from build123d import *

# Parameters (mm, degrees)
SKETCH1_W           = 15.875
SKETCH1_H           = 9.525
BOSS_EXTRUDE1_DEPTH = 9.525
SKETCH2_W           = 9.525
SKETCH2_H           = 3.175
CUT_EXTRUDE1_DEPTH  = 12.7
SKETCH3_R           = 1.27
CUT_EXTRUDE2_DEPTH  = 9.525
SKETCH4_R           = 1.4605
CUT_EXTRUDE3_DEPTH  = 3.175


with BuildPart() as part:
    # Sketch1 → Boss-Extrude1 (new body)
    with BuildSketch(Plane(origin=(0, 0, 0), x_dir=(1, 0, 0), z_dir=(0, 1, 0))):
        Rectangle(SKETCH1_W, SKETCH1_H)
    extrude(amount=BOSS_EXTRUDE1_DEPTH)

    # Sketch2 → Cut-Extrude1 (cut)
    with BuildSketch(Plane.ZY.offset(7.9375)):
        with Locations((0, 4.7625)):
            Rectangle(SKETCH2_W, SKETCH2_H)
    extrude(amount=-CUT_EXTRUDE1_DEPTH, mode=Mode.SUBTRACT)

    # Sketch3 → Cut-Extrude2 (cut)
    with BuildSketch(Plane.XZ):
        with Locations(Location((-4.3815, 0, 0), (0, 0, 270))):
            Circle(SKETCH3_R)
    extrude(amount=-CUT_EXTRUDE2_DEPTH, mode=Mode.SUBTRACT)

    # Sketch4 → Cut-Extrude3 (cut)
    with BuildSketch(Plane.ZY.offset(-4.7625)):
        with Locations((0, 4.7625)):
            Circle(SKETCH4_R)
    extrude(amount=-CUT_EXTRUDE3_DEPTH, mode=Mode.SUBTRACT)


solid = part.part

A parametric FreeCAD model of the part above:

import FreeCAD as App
import Part
import Sketcher
Q = App.Units.Quantity


def add_polygon(sketch, points):
    """Adds a closed chain of lines whose ends are joined by coincident constraints."""
    first, n = sketch.GeometryCount, len(points)
    for a, b in zip(points, points[1:] + points[:1]):
        sketch.addGeometry(Part.LineSegment(App.Vector(*a, 0), App.Vector(*b, 0)), False)
    for i in range(n):
        sketch.addConstraint(Sketcher.Constraint("Coincident", first + i, 2, first + (i + 1) % n, 1))

doc = App.newDocument("Part")
body = doc.addObject("PartDesign::Body", "Body")

# Sketch on XZ plane
sketch1 = body.newObject("Sketcher::SketchObject", "Sketch")
sketch1.AttachmentSupport = (doc.getObject("XZ_Plane"), [""])
sketch1.MapMode = "FlatFace"
add_polygon(sketch1, [(-8, -5), (-8, 5), (8, 5), (8, -5)])  # lines 0-3
sketch1.addConstraint(Sketcher.Constraint("Vertical", 0))
sketch1.addConstraint(Sketcher.Constraint("Horizontal", 1))
sketch1.addConstraint(Sketcher.Constraint("Vertical", 2))
sketch1.addConstraint(Sketcher.Constraint("Horizontal", 3))
sketch1.addConstraint(Sketcher.Constraint("Symmetric", 0, 2, 2, 2, -1, 1))
sketch1.addConstraint(Sketcher.Constraint("DistanceX", 1, 1, 1, 2, Q("0.625 in")))
sketch1.addConstraint(Sketcher.Constraint("DistanceY", 0, 1, 0, 2, Q("0.375 in")))
pad1 = body.newObject("PartDesign::Pad", "Pad")
pad1.Profile = sketch1
pad1.Length = Q("0.375 in")
pad1.Reversed = True

# Sketch on YZ plane
sketch2 = body.newObject("Sketcher::SketchObject", "Sketch001")
sketch2.AttachmentSupport = (doc.getObject("YZ_Plane"), [""])
sketch2.MapMode = "FlatFace"
sketch2.AttachmentOffset = App.Placement(App.Vector(0, 0, -0.3125 * 25.4), App.Rotation())
add_polygon(sketch2, [(6.3, -4.8), (3.2, -4.8), (3.2, 4.8), (6.3, 4.8)])  # lines 0-3
sketch2.addConstraint(Sketcher.Constraint("Horizontal", 0))
sketch2.addConstraint(Sketcher.Constraint("Vertical", 1))
sketch2.addConstraint(Sketcher.Constraint("Horizontal", 2))
sketch2.addConstraint(Sketcher.Constraint("Vertical", 3))
sketch2.addConstraint(Sketcher.Constraint("DistanceX", 0, 2, 0, 1, Q("0.125 in")))
sketch2.addConstraint(Sketcher.Constraint("DistanceY", 1, 1, 1, 2, Q("0.375 in")))
sketch2.addConstraint(Sketcher.Constraint("DistanceX", -1, 1, 2, 2, Q("0.25 in")))
sketch2.addConstraint(Sketcher.Constraint("DistanceY", 0, 2, -1, 1, Q("0.1875 in")))
pocket1 = body.newObject("PartDesign::Pocket", "Pocket")
pocket1.Profile = sketch2
pocket1.Length = Q("0.5 in")
pocket1.Reversed = True

# Sketch on XZ plane
sketch3 = body.newObject("Sketcher::SketchObject", "Sketch002")
sketch3.AttachmentSupport = (doc.getObject("XZ_Plane"), [""])
sketch3.MapMode = "FlatFace"
sketch3.addGeometry(Part.Circle(App.Vector(-4.4, 0, 0), App.Vector(0, 0, 1), 1.3), False)
sketch3.addConstraint(Sketcher.Constraint("PointOnObject", 0, 3, -1))
sketch3.addConstraint(Sketcher.Constraint("Diameter", 0, Q("0.1 in")))
sketch3.addConstraint(Sketcher.Constraint("DistanceX", 0, 3, -1, 1, Q("0.1725 in")))
pocket2 = body.newObject("PartDesign::Pocket", "Pocket001")
pocket2.Profile = sketch3
pocket2.Length = Q("0.375 in")

# Sketch on YZ plane
sketch4 = body.newObject("Sketcher::SketchObject", "Sketch003")
sketch4.AttachmentSupport = (doc.getObject("YZ_Plane"), [""])
sketch4.MapMode = "FlatFace"
sketch4.AttachmentOffset = App.Placement(App.Vector(0, 0, 0.1875 * 25.4), App.Rotation())
sketch4.addGeometry(Part.Circle(App.Vector(4.8, 0, 0), App.Vector(0, 0, 1), 1.5), False)
sketch4.addConstraint(Sketcher.Constraint("PointOnObject", 0, 3, -1))
sketch4.addConstraint(Sketcher.Constraint("Diameter", 0, Q("0.115 in")))
sketch4.addConstraint(Sketcher.Constraint("DistanceX", -1, 1, 0, 3, Q("0.1875 in")))
pocket3 = body.newObject("PartDesign::Pocket", "Pocket002")
pocket3.Profile = sketch4
pocket3.Length = Q("0.125 in")
pocket3.Reversed = True

doc.recompute()
